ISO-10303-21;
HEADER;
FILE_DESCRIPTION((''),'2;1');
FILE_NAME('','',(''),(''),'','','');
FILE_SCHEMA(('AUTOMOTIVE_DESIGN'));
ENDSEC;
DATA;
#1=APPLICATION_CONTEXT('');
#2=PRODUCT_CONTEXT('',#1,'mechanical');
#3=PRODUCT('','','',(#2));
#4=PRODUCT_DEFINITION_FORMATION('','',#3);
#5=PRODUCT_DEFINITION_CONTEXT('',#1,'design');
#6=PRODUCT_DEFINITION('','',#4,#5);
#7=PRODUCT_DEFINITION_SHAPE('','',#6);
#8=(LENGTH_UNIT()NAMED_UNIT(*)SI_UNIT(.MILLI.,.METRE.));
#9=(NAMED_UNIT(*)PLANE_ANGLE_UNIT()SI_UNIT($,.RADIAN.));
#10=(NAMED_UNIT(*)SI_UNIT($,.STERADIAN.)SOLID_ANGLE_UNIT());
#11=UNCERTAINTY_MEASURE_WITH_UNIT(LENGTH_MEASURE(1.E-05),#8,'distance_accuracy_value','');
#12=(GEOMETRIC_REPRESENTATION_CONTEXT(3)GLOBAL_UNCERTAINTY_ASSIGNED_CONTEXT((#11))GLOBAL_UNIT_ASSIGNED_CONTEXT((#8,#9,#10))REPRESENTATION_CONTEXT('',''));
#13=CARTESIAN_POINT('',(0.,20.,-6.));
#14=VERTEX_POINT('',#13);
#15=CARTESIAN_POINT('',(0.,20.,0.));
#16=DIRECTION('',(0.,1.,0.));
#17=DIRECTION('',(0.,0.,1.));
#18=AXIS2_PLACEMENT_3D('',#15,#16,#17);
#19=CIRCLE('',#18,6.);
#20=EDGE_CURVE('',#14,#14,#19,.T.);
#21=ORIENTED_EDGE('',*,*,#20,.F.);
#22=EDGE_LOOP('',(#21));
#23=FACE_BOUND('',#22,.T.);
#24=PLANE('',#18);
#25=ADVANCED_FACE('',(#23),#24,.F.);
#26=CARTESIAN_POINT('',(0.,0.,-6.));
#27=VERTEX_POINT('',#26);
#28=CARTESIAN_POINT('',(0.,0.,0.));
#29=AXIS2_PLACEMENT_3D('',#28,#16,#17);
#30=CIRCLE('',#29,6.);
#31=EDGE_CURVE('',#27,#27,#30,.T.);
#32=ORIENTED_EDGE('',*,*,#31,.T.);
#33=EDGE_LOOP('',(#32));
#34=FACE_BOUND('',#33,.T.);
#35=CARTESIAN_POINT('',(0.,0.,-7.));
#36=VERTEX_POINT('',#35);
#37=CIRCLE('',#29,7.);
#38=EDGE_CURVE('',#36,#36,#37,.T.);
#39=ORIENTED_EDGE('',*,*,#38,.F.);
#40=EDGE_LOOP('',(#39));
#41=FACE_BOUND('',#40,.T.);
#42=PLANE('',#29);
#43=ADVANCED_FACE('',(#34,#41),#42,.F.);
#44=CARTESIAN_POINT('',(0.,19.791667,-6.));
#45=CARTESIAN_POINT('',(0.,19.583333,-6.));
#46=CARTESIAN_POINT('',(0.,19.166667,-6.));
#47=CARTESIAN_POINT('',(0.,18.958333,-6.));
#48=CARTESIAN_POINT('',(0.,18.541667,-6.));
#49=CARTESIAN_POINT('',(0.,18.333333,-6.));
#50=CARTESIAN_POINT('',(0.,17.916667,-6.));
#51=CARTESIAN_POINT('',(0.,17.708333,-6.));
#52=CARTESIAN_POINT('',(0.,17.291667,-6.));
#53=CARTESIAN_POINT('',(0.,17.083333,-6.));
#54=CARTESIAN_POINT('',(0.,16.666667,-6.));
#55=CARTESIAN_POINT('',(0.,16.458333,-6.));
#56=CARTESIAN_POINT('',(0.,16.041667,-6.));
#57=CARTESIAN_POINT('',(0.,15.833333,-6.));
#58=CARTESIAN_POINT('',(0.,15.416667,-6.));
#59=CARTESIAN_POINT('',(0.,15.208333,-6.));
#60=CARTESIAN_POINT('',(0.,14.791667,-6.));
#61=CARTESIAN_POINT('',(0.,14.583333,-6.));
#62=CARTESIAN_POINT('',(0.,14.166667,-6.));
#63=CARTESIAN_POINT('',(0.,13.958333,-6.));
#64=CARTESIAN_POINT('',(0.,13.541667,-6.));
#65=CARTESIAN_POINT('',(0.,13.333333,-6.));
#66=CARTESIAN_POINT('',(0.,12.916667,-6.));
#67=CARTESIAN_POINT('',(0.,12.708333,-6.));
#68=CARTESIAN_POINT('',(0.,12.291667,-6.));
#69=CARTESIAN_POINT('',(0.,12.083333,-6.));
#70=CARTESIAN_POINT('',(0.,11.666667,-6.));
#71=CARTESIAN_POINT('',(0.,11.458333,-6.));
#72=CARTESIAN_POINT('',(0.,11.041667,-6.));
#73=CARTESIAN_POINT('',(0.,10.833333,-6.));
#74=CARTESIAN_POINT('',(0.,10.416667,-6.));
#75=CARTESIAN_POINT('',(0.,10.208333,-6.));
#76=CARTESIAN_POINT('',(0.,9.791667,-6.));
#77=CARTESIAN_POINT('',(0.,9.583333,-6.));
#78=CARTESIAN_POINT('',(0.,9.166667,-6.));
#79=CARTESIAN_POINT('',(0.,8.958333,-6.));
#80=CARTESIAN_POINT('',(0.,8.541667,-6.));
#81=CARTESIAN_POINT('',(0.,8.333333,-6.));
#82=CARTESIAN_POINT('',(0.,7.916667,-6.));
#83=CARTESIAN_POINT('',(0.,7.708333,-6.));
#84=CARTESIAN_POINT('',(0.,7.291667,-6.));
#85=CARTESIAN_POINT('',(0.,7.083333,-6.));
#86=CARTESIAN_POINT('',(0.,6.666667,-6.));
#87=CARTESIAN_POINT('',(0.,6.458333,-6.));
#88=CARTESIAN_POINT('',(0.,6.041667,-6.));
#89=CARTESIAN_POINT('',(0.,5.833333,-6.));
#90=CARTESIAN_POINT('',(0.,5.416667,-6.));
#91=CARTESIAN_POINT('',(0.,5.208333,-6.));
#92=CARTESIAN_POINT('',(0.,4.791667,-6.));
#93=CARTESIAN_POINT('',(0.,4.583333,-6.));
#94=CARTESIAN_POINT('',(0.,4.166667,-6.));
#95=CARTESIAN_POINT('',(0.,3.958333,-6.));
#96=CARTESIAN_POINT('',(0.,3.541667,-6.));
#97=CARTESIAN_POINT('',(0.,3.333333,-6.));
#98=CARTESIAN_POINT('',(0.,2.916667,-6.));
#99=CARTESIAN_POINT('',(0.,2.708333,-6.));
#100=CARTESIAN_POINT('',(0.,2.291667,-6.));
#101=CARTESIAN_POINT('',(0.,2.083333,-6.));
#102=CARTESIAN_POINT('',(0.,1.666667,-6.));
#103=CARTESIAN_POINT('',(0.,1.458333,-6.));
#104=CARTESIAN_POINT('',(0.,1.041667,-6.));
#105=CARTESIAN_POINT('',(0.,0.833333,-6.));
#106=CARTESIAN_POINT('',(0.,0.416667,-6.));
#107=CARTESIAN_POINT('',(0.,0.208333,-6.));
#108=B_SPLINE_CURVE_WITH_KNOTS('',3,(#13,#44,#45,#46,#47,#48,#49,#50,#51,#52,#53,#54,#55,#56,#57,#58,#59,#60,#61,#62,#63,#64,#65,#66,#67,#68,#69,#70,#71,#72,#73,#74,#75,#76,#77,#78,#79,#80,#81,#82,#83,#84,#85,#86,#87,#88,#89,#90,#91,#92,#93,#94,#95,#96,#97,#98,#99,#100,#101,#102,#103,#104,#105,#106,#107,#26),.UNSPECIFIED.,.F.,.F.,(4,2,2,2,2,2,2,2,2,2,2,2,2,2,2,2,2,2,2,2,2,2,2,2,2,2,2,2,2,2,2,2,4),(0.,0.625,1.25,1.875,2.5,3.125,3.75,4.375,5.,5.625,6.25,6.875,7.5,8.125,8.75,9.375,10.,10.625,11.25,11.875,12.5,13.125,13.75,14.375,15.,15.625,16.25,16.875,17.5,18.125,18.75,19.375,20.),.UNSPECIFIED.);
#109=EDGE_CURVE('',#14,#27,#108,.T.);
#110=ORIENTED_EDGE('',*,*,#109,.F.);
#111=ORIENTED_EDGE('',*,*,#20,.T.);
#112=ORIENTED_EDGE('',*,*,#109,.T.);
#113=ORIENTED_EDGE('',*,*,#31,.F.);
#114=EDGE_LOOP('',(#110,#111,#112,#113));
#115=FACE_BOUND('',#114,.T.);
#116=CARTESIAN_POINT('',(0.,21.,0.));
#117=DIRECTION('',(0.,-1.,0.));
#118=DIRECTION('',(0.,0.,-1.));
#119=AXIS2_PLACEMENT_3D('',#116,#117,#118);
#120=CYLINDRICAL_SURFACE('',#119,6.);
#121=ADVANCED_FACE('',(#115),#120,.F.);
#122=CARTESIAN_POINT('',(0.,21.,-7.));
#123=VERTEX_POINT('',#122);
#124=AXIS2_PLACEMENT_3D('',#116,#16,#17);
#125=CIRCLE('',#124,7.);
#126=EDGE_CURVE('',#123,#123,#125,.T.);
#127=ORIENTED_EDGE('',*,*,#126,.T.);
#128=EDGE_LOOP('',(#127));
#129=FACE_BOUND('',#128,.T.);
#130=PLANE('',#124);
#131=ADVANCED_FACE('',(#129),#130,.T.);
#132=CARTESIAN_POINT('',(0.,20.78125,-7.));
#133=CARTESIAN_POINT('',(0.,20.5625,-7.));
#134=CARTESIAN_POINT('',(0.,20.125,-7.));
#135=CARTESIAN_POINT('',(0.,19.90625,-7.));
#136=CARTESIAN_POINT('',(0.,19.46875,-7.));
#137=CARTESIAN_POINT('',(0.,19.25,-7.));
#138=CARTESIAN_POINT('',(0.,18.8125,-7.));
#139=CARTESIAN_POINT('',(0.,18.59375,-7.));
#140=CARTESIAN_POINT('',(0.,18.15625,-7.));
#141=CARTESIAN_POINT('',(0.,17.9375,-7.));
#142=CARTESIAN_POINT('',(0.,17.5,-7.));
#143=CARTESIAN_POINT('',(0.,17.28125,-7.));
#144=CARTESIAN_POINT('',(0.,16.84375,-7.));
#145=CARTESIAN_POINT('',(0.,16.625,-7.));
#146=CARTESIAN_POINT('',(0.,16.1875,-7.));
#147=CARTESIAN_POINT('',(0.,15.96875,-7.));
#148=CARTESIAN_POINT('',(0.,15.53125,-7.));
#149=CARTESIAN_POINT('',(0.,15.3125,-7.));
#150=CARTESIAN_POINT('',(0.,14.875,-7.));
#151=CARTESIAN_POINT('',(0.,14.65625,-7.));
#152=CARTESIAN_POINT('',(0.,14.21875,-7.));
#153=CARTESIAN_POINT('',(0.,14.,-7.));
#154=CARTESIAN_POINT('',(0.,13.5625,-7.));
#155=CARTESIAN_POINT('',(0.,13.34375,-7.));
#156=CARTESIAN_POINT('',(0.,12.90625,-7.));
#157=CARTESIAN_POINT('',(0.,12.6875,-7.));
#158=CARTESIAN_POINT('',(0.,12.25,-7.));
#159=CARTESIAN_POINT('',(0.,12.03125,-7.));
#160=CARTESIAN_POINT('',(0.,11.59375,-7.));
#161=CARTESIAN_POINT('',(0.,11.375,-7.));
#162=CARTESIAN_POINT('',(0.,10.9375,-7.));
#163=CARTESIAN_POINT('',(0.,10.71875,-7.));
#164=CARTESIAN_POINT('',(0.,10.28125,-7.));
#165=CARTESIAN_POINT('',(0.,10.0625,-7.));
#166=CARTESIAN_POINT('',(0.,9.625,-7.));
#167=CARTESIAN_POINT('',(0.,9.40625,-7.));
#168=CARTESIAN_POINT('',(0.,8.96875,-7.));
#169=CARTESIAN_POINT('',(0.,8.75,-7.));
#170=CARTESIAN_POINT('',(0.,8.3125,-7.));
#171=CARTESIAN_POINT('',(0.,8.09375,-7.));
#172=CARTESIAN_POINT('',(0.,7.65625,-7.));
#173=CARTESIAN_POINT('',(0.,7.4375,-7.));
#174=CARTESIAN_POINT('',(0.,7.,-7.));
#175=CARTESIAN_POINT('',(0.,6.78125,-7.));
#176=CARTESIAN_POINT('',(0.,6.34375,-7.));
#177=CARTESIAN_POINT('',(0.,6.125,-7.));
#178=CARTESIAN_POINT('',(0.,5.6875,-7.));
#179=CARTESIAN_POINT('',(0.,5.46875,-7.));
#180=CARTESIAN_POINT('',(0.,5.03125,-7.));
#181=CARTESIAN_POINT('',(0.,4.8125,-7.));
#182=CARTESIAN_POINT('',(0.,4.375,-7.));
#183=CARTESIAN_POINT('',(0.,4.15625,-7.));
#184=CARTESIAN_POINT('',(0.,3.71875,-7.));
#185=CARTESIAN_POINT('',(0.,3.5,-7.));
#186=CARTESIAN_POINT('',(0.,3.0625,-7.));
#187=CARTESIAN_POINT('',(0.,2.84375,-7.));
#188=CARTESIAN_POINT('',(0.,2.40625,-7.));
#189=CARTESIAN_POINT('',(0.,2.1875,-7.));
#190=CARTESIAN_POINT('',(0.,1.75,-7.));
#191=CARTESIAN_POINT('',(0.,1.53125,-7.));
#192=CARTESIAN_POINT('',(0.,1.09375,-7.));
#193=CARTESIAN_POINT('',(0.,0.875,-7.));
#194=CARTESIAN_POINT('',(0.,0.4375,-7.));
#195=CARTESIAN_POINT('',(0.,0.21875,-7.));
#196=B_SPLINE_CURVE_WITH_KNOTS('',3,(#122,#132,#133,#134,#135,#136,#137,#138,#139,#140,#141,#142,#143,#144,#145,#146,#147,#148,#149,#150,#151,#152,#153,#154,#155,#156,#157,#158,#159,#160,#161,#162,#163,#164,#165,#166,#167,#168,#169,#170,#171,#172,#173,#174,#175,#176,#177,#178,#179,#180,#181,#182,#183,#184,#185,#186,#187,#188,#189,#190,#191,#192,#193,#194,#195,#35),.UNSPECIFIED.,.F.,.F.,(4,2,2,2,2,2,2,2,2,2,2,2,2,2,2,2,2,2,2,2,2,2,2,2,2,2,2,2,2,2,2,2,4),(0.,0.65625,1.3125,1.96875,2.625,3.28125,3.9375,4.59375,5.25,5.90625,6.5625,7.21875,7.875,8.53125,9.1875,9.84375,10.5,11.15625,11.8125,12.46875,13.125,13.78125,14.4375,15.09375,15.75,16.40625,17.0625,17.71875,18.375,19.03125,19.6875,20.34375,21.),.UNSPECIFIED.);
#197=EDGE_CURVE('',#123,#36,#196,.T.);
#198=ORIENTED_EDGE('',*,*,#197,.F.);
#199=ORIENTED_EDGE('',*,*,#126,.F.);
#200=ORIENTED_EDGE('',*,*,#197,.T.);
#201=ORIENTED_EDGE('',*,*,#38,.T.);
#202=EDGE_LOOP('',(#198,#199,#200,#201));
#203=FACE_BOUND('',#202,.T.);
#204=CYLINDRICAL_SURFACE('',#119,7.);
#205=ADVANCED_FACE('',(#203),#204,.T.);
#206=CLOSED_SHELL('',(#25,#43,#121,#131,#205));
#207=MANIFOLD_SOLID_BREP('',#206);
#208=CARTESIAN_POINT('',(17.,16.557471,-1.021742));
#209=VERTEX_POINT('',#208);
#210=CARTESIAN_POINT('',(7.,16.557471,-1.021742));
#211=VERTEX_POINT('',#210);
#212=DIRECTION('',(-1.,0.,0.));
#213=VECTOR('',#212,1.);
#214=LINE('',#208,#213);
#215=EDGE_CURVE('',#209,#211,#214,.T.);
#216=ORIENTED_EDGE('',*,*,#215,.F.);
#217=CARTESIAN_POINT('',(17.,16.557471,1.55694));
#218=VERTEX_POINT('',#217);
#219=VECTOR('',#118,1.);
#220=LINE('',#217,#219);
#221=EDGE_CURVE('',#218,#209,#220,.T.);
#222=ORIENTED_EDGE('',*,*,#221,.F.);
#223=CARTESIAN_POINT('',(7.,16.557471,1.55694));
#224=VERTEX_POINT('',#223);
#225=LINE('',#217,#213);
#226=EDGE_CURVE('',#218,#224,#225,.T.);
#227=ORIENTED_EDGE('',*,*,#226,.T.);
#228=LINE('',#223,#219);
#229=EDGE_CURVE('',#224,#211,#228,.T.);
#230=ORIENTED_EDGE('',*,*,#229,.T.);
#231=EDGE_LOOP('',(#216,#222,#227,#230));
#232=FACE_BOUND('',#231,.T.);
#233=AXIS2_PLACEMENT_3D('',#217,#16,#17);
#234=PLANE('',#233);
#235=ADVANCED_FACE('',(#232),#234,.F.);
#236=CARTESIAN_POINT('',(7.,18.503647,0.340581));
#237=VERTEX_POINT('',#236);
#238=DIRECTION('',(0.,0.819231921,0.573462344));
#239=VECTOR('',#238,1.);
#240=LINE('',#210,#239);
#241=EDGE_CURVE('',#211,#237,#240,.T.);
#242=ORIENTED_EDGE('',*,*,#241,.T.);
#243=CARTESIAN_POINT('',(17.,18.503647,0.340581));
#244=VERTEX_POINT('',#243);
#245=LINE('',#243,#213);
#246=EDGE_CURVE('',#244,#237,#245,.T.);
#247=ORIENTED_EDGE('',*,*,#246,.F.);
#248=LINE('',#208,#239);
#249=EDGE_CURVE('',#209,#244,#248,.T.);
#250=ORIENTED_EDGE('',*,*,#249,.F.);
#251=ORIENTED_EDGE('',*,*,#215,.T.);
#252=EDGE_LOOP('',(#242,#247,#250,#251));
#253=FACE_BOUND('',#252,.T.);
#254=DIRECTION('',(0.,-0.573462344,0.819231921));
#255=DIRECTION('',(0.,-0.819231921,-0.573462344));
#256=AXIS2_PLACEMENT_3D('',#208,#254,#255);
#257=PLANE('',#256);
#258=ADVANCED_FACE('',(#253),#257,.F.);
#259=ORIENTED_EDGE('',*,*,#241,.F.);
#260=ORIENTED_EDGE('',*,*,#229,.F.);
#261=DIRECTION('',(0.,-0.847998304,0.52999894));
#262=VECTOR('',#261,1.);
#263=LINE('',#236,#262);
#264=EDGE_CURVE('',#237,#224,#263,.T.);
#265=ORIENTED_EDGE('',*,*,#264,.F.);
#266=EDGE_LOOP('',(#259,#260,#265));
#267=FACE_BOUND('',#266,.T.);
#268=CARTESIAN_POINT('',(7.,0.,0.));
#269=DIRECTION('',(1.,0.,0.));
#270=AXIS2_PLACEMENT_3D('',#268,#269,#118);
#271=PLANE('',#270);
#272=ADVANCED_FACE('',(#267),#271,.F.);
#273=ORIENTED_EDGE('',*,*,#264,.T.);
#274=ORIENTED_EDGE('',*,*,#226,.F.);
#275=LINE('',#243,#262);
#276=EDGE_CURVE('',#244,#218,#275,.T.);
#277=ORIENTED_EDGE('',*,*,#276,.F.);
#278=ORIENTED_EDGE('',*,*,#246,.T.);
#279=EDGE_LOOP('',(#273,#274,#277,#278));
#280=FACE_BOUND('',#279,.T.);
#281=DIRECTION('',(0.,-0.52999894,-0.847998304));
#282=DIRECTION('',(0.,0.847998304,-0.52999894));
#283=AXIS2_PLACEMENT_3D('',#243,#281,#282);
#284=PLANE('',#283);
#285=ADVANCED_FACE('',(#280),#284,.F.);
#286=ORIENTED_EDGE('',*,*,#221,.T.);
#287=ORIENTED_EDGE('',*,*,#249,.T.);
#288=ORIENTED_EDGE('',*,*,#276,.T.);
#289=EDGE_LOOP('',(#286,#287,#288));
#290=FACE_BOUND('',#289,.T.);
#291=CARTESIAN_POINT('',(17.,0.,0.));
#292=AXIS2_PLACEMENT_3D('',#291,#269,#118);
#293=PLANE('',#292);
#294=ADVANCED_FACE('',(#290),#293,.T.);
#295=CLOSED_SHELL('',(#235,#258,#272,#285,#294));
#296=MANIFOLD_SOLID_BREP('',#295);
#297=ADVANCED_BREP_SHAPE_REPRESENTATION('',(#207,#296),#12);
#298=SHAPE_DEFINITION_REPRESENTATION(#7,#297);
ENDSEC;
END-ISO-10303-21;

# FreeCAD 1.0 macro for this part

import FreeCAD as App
import Part
import Sketcher
Q = App.Units.Quantity


def faces_at(feature, points):
    """Names of the faces that lie closest to the given points."""
    faces = feature.Shape.Faces
    near = lambda p: min(range(len(faces)), key=lambda i: faces[i].distToShape(Part.Vertex(*p))[0])
    return sorted({f"Face{near(p) + 1}" for p in points})

doc = App.newDocument("Part")
body = doc.addObject("PartDesign::Body", "Body")

# Sketch on XZ plane
sketch1 = body.newObject("Sketcher::SketchObject", "Sketch")
sketch1.AttachmentSupport = (doc.getObject("XZ_Plane"), [""])
sketch1.MapMode = "FlatFace"
sketch1.addGeometry(Part.Circle(App.Vector(0, 0, 0), App.Vector(0, 0, 1), 7), False)
sketch1.addConstraint([
    Sketcher.Constraint("Coincident", 0, 3, -1, 1),
    Sketcher.Constraint("Diameter", 0, Q("14 mm")),
])
pad1 = body.newObject("PartDesign::Pad", "Pad")
pad1.Profile = sketch1
pad1.Length = 21
pad1.Reversed = True
doc.recompute()

thickness = body.newObject("PartDesign::Thickness", "Thickness")
thickness.Base = (pad1, faces_at(pad1, [(0, 0, 0)]))
thickness.Value = 1
thickness.Reversed = True
thickness.Join = "Intersection"
body2 = doc.addObject("PartDesign::Body", "Body001")

# Sketch on YZ plane
sketch2 = body2.newObject("Sketcher::SketchObject", "Sketch001")
sketch2.AttachmentSupport = (doc.getObject("YZ_Plane001"), [""])
sketch2.MapMode = "FlatFace"
sketch2.AttachmentOffset = App.Placement(App.Vector(0, 0, 7), App.Rotation())
sketch2.addGeometry([
    Part.LineSegment(App.Vector(18.503647, 0.340581, 0), App.Vector(16.557471, 1.55694, 0)),
    Part.LineSegment(App.Vector(16.557471, 1.55694, 0), App.Vector(16.557471, -1.021742, 0)),
    Part.LineSegment(App.Vector(16.557471, -1.021742, 0), App.Vector(18.503647, 0.340581, 0)),
], False)
sketch2.addConstraint([
    Sketcher.Constraint("Coincident", 0, 2, 1, 1),
    Sketcher.Constraint("Coincident", 1, 2, 2, 1),
    Sketcher.Constraint("Coincident", 2, 2, 0, 1),
    Sketcher.Constraint("Vertical", 1),
    Sketcher.Constraint("Distance", 2, Q("2.37561 mm")),
    Sketcher.Constraint("DistanceY", 1, 2, 1, 1, Q("2.578683 mm")),
    Sketcher.Constraint("DistanceX", -1, 1, 0, 2, Q("16.557471 mm")),
    Sketcher.Constraint("DistanceY", -1, 1, 0, 2, Q("1.55694 mm")),
    Sketcher.Constraint("DistanceY", -1, 1, 2, 2, Q("0.340581 mm")),
])
pad2 = body2.newObject("PartDesign::Pad", "Pad001")
pad2.Profile = sketch2
pad2.Length = 10

doc.recompute()
